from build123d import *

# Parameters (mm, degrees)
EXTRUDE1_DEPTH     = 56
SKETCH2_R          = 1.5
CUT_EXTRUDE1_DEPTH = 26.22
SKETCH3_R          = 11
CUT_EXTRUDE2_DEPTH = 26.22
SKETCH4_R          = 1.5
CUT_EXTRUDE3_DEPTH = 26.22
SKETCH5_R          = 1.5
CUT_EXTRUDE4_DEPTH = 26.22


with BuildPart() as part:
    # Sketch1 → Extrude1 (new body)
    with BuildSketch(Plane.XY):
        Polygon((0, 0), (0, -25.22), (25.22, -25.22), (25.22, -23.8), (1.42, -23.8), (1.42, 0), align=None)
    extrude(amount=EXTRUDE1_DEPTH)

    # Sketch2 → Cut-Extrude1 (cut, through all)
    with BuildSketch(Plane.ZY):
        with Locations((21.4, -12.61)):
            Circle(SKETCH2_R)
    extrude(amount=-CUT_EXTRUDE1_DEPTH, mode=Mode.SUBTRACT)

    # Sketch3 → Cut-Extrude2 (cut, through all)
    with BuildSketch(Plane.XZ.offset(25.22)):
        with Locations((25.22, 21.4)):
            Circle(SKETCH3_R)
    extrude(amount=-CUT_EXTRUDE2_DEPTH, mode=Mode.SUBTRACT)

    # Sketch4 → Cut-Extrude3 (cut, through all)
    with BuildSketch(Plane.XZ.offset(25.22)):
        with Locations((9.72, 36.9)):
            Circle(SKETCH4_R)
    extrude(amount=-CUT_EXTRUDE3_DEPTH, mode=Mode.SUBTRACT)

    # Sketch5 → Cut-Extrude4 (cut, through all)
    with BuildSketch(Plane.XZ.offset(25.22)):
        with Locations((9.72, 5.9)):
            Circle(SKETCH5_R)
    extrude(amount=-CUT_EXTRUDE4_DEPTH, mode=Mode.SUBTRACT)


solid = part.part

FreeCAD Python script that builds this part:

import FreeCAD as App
import Part
import Sketcher

V = App.Vector
Q = App.Units.Quantity


def add_polygon(sketch, points):
    """Adds a closed chain of lines whose ends are joined by coincident constraints."""
    first, n = sketch.GeometryCount, len(points)
    for a, b in zip(points, points[1:] + points[:1]):
        sketch.addGeometry(Part.LineSegment(App.Vector(*a, 0), App.Vector(*b, 0)), False)
    for i in range(n):
        sketch.addConstraint(Sketcher.Constraint("Coincident", first + i, 2, first + (i + 1) % n, 1))

doc = App.newDocument("Part")
body = doc.addObject("PartDesign::Body", "Body")

# Sketch on XY plane
sketch1 = doc.addObject("Sketcher::SketchObject", "Sketch")
body.addObject(sketch1)
sketch1.AttachmentSupport = (doc.XY_Plane, [""])
sketch1.MapMode = "FlatFace"
add_polygon(sketch1, [(0, 0), (0, -25.2), (25.2, -25.2), (25.2, -23.8), (1.4, -23.8), (1.4, 0)])  # lines 0-5
sketch1.addConstraint(Sketcher.Constraint("Vertical", 0))
sketch1.addConstraint(Sketcher.Constraint("Horizontal", 1))
sketch1.addConstraint(Sketcher.Constraint("Vertical", 2))
sketch1.addConstraint(Sketcher.Constraint("Horizontal", 3))
sketch1.addConstraint(Sketcher.Constraint("Vertical", 4))
sketch1.addConstraint(Sketcher.Constraint("Horizontal", 5))
sketch1.addConstraint(Sketcher.Constraint("Coincident", 5, 2, -1, 1))
sketch1.addConstraint(Sketcher.Constraint("Equal", 1, 0))
sketch1.addConstraint(Sketcher.Constraint("Equal", 5, 2))
sketch1.addConstraint(Sketcher.Constraint("DistanceX", 3, 2, 3, 1, Q("23.8 mm")))
sketch1.addConstraint(Sketcher.Constraint("DistanceX", 1, 1, 1, 2, Q("25.22 mm")))
pad1 = doc.addObject("PartDesign::Pad", "Pad")
body.addObject(pad1)
pad1.Profile = sketch1
pad1.Length = 56

# Sketch on YZ plane
sketch2 = doc.addObject("Sketcher::SketchObject", "Sketch001")
body.addObject(sketch2)
sketch2.AttachmentSupport = (doc.YZ_Plane, [""])
sketch2.MapMode = "FlatFace"
sketch2.addGeometry(Part.Circle(V(-12.6, 21.4, 0), V(0, 0, 1), 1.5), False)
sketch2.addConstraint(Sketcher.Constraint("Diameter", 0, Q("3 mm")))
sketch2.addConstraint(Sketcher.Constraint("DistanceY", -1, 1, 0, 3, Q("21.4 mm")))
sketch2.addConstraint(Sketcher.Constraint("DistanceX", 0, 3, -1, 1, Q("12.61 mm")))
pocket1 = doc.addObject("PartDesign::Pocket", "Pocket")
body.addObject(pocket1)
pocket1.Profile = sketch2
pocket1.Type = "ThroughAll"
pocket1.Reversed = True

# Sketch on XZ plane
sketch3 = doc.addObject("Sketcher::SketchObject", "Sketch002")
body.addObject(sketch3)
sketch3.AttachmentSupport = (doc.XZ_Plane, [""])
sketch3.MapMode = "FlatFace"
sketch3.AttachmentOffset = App.Placement(V(0, 0, 25.22), App.Rotation())
sketch3.addGeometry(Part.Circle(V(25, 21, 0), V(0, 0, 1), 11), False)
sketch3.addConstraint(Sketcher.Constraint("Diameter", 0, Q("22 mm")))
sketch3.addConstraint(Sketcher.Constraint("DistanceY", -1, 1, 0, 3, Q("21.4 mm")))
sketch3.addConstraint(Sketcher.Constraint("DistanceX", -1, 1, 0, 3, Q("25.22 mm")))
pocket2 = doc.addObject("PartDesign::Pocket", "Pocket001")
body.addObject(pocket2)
pocket2.Profile = sketch3
pocket2.Type = "ThroughAll"

# Sketch on XZ plane
sketch4 = doc.addObject("Sketcher::SketchObject", "Sketch003")
body.addObject(sketch4)
sketch4.AttachmentSupport = (doc.XZ_Plane, [""])
sketch4.MapMode = "FlatFace"
sketch4.AttachmentOffset = App.Placement(V(0, 0, 25.22), App.Rotation())
sketch4.addGeometry(Part.Circle(V(9.7, 36.9, 0), V(0, 0, 1), 1.5), False)
sketch4.addConstraint(Sketcher.Constraint("Diameter", 0, Q("3 mm")))
sketch4.addConstraint(Sketcher.Constraint("DistanceY", -1, 1, 0, 3, Q("36.9 mm")))
sketch4.addConstraint(Sketcher.Constraint("DistanceX", -1, 1, 0, 3, Q("9.72 mm")))
pocket3 = doc.addObject("PartDesign::Pocket", "Pocket002")
body.addObject(pocket3)
pocket3.Profile = sketch4
pocket3.Type = "ThroughAll"

# Sketch on XZ plane
sketch5 = doc.addObject("Sketcher::SketchObject", "Sketch004")
body.addObject(sketch5)
sketch5.AttachmentSupport = (doc.XZ_Plane, [""])
sketch5.MapMode = "FlatFace"
sketch5.AttachmentOffset = App.Placement(V(0, 0, 25.22), App.Rotation())
sketch5.addGeometry(Part.Circle(V(9.7, 5.9, 0), V(0, 0, 1), 1.5), False)
sketch5.addConstraint(Sketcher.Constraint("Diameter", 0, Q("3 mm")))
sketch5.addConstraint(Sketcher.Constraint("DistanceY", -1, 1, 0, 3, Q("5.9 mm")))
sketch5.addConstraint(Sketcher.Constraint("DistanceX", -1, 1, 0, 3, Q("9.72 mm")))
pocket4 = doc.addObject("PartDesign::Pocket", "Pocket003")
body.addObject(pocket4)
pocket4.Profile = sketch5
pocket4.Type = "ThroughAll"

doc.recompute()
